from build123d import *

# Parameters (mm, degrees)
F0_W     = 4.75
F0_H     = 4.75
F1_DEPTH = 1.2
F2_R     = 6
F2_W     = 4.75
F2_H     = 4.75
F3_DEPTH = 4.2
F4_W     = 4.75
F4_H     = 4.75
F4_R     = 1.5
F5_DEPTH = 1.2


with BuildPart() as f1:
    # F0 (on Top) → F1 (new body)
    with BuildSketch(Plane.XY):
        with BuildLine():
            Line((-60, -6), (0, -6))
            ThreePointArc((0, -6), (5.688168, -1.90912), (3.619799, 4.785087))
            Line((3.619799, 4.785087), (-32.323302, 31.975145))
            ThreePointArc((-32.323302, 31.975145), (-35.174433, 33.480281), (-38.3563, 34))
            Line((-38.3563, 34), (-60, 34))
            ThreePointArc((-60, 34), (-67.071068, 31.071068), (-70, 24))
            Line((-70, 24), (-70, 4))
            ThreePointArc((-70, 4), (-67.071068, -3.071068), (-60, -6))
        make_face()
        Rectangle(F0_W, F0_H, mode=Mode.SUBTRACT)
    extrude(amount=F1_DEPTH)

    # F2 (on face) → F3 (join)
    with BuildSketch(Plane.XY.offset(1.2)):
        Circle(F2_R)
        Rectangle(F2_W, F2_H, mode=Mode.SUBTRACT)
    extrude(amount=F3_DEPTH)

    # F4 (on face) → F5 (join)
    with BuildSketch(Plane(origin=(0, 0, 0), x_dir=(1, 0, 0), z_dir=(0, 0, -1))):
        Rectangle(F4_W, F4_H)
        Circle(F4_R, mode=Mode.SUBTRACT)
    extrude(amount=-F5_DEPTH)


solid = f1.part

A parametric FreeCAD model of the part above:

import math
import FreeCAD as App
import Part
import Sketcher

doc = App.newDocument("Part")
params = doc.addObject("Spreadsheet::Sheet", "Params")
for row, (alias, value) in enumerate([
    ("sketch1_radius", "6 mm"),
    ("sketch1_radius2", "9.999999 mm"),
    ("sketch1_width", "60 mm"),
    ("sketch1_height", "20 mm"),
    ("sketch1_width2", "4.75 mm"),
    ("pad1_length", "1.2 mm"),
    ("sketch2_diameter", "12 mm"),
    ("sketch2_width", "4.75 mm"),
    ("pad2_length", "4.2 mm"),
    ("sketch3_diameter", "3 mm"),
    ("sketch3_width", "4.75 mm"),
    ("pad3_length", "1.2 mm"),
], start=1):
    params.set(f"A{row}", alias)
    params.set(f"B{row}", "=" + value)
    params.setAlias(f"B{row}", alias)

body = doc.addObject("PartDesign::Body", "Body")

# Sketch on XY plane
sketch1 = body.newObject("Sketcher::SketchObject", "Sketch")
sketch1.AttachmentSupport = (doc.getObject("XY_Plane"), [""])
sketch1.MapMode = "FlatFace"
sketch1.addGeometry([
    Part.LineSegment(App.Vector(-60, -6, 0), App.Vector(0, -6, 0)),  # 0
    Part.ArcOfCircle(Part.Circle(App.Vector(0, 0, 0), App.Vector(0, 0, 1), 6), math.radians(-90), math.radians(53)),  # 1
    Part.LineSegment(App.Vector(3.6, 4.8, 0), App.Vector(-32.3, 32, 0)),  # 2
    Part.ArcOfCircle(Part.Circle(App.Vector(-38.4, 24, 0), App.Vector(0, 0, 1), 10), math.radians(53), math.radians(90)),  # 3
    Part.LineSegment(App.Vector(-38.4, 34, 0), App.Vector(-60, 34, 0)),  # 4
    Part.ArcOfCircle(Part.Circle(App.Vector(-60, 24, 0), App.Vector(0, 0, 1), 10), math.radians(90), math.radians(180)),  # 5
    Part.LineSegment(App.Vector(-70, 24, 0), App.Vector(-70, 4, 0)),  # 6
    Part.ArcOfCircle(Part.Circle(App.Vector(-60, 4, 0), App.Vector(0, 0, 1), 10), math.radians(180), math.radians(270)),  # 7
    Part.LineSegment(App.Vector(2.4, -2.4, 0), App.Vector(-2.4, -2.4, 0)),  # 8
    Part.LineSegment(App.Vector(-2.4, -2.4, 0), App.Vector(-2.4, 2.4, 0)),  # 9
    Part.LineSegment(App.Vector(-2.4, 2.4, 0), App.Vector(2.4, 2.4, 0)),  # 10
    Part.LineSegment(App.Vector(2.4, 2.4, 0), App.Vector(2.4, -2.4, 0)),  # 11
], False)
sketch1.addConstraint([
    Sketcher.Constraint("Tangent", 0, 2, 1, 1),
    Sketcher.Constraint("Tangent", 1, 2, 2, 1),
    Sketcher.Constraint("Tangent", 2, 2, 3, 1),
    Sketcher.Constraint("Tangent", 3, 2, 4, 1),
    Sketcher.Constraint("Tangent", 4, 2, 5, 1),
    Sketcher.Constraint("Tangent", 5, 2, 6, 1),
    Sketcher.Constraint("Tangent", 6, 2, 7, 1),
    Sketcher.Constraint("Tangent", 7, 2, 0, 1),
    Sketcher.Constraint("Coincident", 8, 2, 9, 1),
    Sketcher.Constraint("Coincident", 9, 2, 10, 1),
    Sketcher.Constraint("Coincident", 10, 2, 11, 1),
    Sketcher.Constraint("Coincident", 11, 2, 8, 1),
    Sketcher.Constraint("Horizontal", 0),
    Sketcher.Constraint("Horizontal", 4),
    Sketcher.Constraint("Vertical", 6),
    Sketcher.Constraint("Horizontal", 8),
    Sketcher.Constraint("Vertical", 9),
    Sketcher.Constraint("Horizontal", 10),
    Sketcher.Constraint("Vertical", 11),
    Sketcher.Constraint("Coincident", 1, 3, -1, 1),
    Sketcher.Constraint("Equal", 5, 7),
    Sketcher.Constraint("Symmetric", 8, 2, 10, 2, -1, 1),
    Sketcher.Constraint("Equal", 10, 9),
    Sketcher.Constraint("Radius", 1, 6.0),
    Sketcher.Constraint("Radius", 5, 9.999999),
    Sketcher.Constraint("DistanceX", 0, 1, 0, 2, 60.0),
    Sketcher.Constraint("DistanceY", 6, 2, 6, 1, 20.0),
    Sketcher.Constraint("DistanceX", 8, 2, 8, 1, 4.75),
    Sketcher.Constraint("DistanceX", 4, 2, 4, 1, 21.6437),
    Sketcher.Constraint("Radius", 3, 9.999996),
])
sketch1.setExpression("Constraints[23]", "Params.sketch1_radius")
sketch1.setExpression("Constraints[24]", "Params.sketch1_radius2")
sketch1.setExpression("Constraints[25]", "Params.sketch1_width")
sketch1.setExpression("Constraints[26]", "Params.sketch1_height")
sketch1.setExpression("Constraints[27]", "Params.sketch1_width2")
pad1 = body.newObject("PartDesign::Pad", "Pad")
pad1.Profile = sketch1
pad1.setExpression("Length", "Params.pad1_length")

# Sketch on XY plane
sketch2 = body.newObject("Sketcher::SketchObject", "Sketch001")
sketch2.AttachmentSupport = (doc.getObject("XY_Plane"), [""])
sketch2.MapMode = "FlatFace"
sketch2.AttachmentOffset = App.Placement(App.Vector(0, 0, 1.2), App.Rotation())
sketch2.addGeometry([
    Part.Circle(App.Vector(0, 0, 0), App.Vector(0, 0, 1), 6),  # 0
    Part.LineSegment(App.Vector(2.4, -2.4, 0), App.Vector(-2.4, -2.4, 0)),  # 1
    Part.LineSegment(App.Vector(-2.4, -2.4, 0), App.Vector(-2.4, 2.4, 0)),  # 2
    Part.LineSegment(App.Vector(-2.4, 2.4, 0), App.Vector(2.4, 2.4, 0)),  # 3
    Part.LineSegment(App.Vector(2.4, 2.4, 0), App.Vector(2.4, -2.4, 0)),  # 4
], False)
sketch2.addConstraint([
    Sketcher.Constraint("Coincident", 1, 2, 2, 1),
    Sketcher.Constraint("Coincident", 2, 2, 3, 1),
    Sketcher.Constraint("Coincident", 3, 2, 4, 1),
    Sketcher.Constraint("Coincident", 4, 2, 1, 1),
    Sketcher.Constraint("Horizontal", 1),
    Sketcher.Constraint("Vertical", 2),
    Sketcher.Constraint("Horizontal", 3),
    Sketcher.Constraint("Vertical", 4),
    Sketcher.Constraint("Coincident", 0, 3, -1, 1),
    Sketcher.Constraint("Symmetric", 1, 2, 3, 2, -1, 1),
    Sketcher.Constraint("Equal", 3, 2),
    Sketcher.Constraint("Diameter", 0, 12.0),
    Sketcher.Constraint("DistanceX", 1, 2, 1, 1, 4.75),
])
sketch2.setExpression("Constraints[11]", "Params.sketch2_diameter")
sketch2.setExpression("Constraints[12]", "Params.sketch2_width")
pad2 = body.newObject("PartDesign::Pad", "Pad001")
pad2.Profile = sketch2
pad2.setExpression("Length", "Params.pad2_length")

# Sketch on XY plane
sketch3 = body.newObject("Sketcher::SketchObject", "Sketch002")
sketch3.AttachmentSupport = (doc.getObject("XY_Plane"), [""])
sketch3.MapMode = "FlatFace"
sketch3.addGeometry([
    Part.LineSegment(App.Vector(-2.4, -2.4, 0), App.Vector(-2.4, 2.4, 0)),  # 0
    Part.LineSegment(App.Vector(-2.4, 2.4, 0), App.Vector(2.4, 2.4, 0)),  # 1
    Part.LineSegment(App.Vector(2.4, 2.4, 0), App.Vector(2.4, -2.4, 0)),  # 2
    Part.LineSegment(App.Vector(2.4, -2.4, 0), App.Vector(-2.4, -2.4, 0)),  # 3
    Part.Circle(App.Vector(0, 0, 0), App.Vector(0, 0, 1), 1.5),  # 4
], False)
sketch3.addConstraint([
    Sketcher.Constraint("Coincident", 0, 2, 1, 1),
    Sketcher.Constraint("Coincident", 1, 2, 2, 1),
    Sketcher.Constraint("Coincident", 2, 2, 3, 1),
    Sketcher.Constraint("Coincident", 3, 2, 0, 1),
    Sketcher.Constraint("Vertical", 0),
    Sketcher.Constraint("Horizontal", 1),
    Sketcher.Constraint("Vertical", 2),
    Sketcher.Constraint("Horizontal", 3),
    Sketcher.Constraint("Coincident", 4, 3, -1, 1),
    Sketcher.Constraint("Symmetric", 0, 2, 2, 2, -1, 1),
    Sketcher.Constraint("Equal", 3, 0),
    Sketcher.Constraint("Diameter", 4, 3.0),
    Sketcher.Constraint("DistanceX", 1, 1, 1, 2, 4.75),
])
sketch3.setExpression("Constraints[11]", "Params.sketch3_diameter")
sketch3.setExpression("Constraints[12]", "Params.sketch3_width")
pad3 = body.newObject("PartDesign::Pad", "Pad002")
pad3.Profile = sketch3
pad3.setExpression("Length", "Params.pad3_length")

doc.recompute()
